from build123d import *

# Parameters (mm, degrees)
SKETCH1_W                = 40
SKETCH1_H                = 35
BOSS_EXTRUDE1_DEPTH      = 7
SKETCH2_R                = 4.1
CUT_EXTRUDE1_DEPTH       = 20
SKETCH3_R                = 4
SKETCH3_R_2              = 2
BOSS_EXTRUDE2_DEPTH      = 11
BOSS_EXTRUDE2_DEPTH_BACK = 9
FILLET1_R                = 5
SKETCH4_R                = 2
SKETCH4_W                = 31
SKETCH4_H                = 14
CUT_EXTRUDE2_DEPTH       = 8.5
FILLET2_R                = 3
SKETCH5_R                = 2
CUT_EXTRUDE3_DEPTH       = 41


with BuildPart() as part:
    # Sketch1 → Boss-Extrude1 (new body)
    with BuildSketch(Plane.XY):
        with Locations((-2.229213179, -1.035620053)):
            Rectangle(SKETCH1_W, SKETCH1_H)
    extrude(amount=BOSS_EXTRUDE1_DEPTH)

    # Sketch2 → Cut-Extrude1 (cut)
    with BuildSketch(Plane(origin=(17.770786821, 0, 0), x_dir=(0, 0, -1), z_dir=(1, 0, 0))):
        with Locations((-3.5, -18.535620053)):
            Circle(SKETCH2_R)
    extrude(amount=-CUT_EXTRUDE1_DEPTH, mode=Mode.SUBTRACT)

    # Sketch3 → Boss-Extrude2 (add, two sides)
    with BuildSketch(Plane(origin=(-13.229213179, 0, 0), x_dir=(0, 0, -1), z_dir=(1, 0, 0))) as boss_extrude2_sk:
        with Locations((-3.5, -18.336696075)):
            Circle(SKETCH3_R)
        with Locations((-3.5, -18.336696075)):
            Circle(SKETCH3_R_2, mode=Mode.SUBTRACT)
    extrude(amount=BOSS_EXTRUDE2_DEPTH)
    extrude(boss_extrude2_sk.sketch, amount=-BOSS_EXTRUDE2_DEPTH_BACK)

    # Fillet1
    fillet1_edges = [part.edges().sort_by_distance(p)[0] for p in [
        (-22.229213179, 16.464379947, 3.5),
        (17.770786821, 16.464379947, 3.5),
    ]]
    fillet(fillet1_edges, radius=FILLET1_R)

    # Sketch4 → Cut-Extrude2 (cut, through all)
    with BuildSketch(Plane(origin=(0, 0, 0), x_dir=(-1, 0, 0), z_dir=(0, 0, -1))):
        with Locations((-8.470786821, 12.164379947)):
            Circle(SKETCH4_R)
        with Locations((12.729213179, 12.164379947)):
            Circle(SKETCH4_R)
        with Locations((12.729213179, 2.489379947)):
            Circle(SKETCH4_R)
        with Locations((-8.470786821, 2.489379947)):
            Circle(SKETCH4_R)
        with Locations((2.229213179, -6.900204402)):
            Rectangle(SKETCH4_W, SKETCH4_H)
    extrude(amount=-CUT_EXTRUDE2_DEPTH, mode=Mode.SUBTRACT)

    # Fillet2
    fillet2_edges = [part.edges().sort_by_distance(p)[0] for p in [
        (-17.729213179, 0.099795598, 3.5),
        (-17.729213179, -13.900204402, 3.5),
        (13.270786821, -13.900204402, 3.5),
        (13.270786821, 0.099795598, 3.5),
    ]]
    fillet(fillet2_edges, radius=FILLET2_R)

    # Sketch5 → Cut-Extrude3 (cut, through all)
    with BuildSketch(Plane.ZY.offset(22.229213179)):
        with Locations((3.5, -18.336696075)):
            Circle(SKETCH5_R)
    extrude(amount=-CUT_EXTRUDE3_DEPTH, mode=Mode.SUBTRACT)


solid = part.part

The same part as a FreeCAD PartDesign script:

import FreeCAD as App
import Part
import Sketcher


def edges_at(feature, points):
    """Names of the edges that pass closest to the given points."""
    edges = feature.Shape.Edges
    near = lambda p: min(range(len(edges)), key=lambda i: edges[i].distToShape(Part.Vertex(*p))[0])
    return sorted({f"Edge{near(p) + 1}" for p in points})


def add_polygon(sketch, points):
    """Adds a closed chain of lines whose ends are joined by coincident constraints."""
    first, n = sketch.GeometryCount, len(points)
    for a, b in zip(points, points[1:] + points[:1]):
        sketch.addGeometry(Part.LineSegment(App.Vector(*a, 0), App.Vector(*b, 0)), False)
    for i in range(n):
        sketch.addConstraint(Sketcher.Constraint("Coincident", first + i, 2, first + (i + 1) % n, 1))

doc = App.newDocument("Part")
params = doc.addObject("Spreadsheet::Sheet", "Params")
for row, (alias, value) in enumerate([
    ("sketch1_width", "40 mm"),
    ("sketch1_height", "35 mm"),
    ("pad1_length", "7 mm"),
    ("sketch2_diameter", "8.2 mm"),
    ("pocket1_length", "20 mm"),
    ("sketch3_diameter", "8 mm"),
    ("sketch3_diameter2", "4 mm"),
    ("pad2_length", "11 mm"),
    ("pad2_length2", "9 mm"),
    ("fillet_radius", "5 mm"),
    ("sketch4_diameter", "4 mm"),
    ("sketch4_width", "31 mm"),
    ("sketch4_height", "14 mm"),
    ("fillet2_radius", "3 mm"),
    ("sketch5_diameter", "4 mm"),
], start=1):
    params.set(f"A{row}", alias)
    params.set(f"B{row}", "=" + value)
    params.setAlias(f"B{row}", alias)

body = doc.addObject("PartDesign::Body", "Body")

sketch1 = body.newObject("Sketcher::SketchObject", "Sketch")
sketch1.AttachmentSupport = (doc.getObject("XY_Plane"), [""])
sketch1.MapMode = "FlatFace"
add_polygon(sketch1, [(-22.229213, 16.46438), (-22.229213, -18.53562), (17.770787, -18.53562), (17.770787, 16.46438)])
sketch1.addConstraint([
    Sketcher.Constraint("Vertical", 0),
    Sketcher.Constraint("Horizontal", 1),
    Sketcher.Constraint("Vertical", 2),
    Sketcher.Constraint("Horizontal", 3),
    Sketcher.Constraint("DistanceX", 1, 1, 1, 2, 40.0),
    Sketcher.Constraint("DistanceY", 0, 2, 0, 1, 35.0),
    Sketcher.Constraint("DistanceY", 0, 2, -1, 1, 18.53562),
    Sketcher.Constraint("DistanceX", 0, 2, -1, 1, 22.229213),
])
sketch1.setExpression("Constraints[8]", "Params.sketch1_width")
sketch1.setExpression("Constraints[9]", "Params.sketch1_height")
pad1 = body.newObject("PartDesign::Pad", "Pad")
pad1.Profile = sketch1
pad1.setExpression("Length", "Params.pad1_length")

sketch2 = body.newObject("Sketcher::SketchObject", "Sketch001")
sketch2.AttachmentSupport = (doc.getObject("YZ_Plane"), [""])
sketch2.MapMode = "FlatFace"
sketch2.AttachmentOffset = App.Placement(App.Vector(0, 0, 17.770787), App.Rotation())
sketch2.addGeometry(Part.Circle(App.Vector(-18.53562, 3.5, 0), App.Vector(0, 0, 1), 4.1), False)
sketch2.addConstraint([
    Sketcher.Constraint("Diameter", 0, 8.2),
    Sketcher.Constraint("DistanceY", -1, 1, 0, 3, 3.5),
    Sketcher.Constraint("DistanceX", 0, 3, -1, 1, 18.53562),
])
sketch2.setExpression("Constraints[0]", "Params.sketch2_diameter")
pocket1 = body.newObject("PartDesign::Pocket", "Pocket")
pocket1.Profile = sketch2
pocket1.setExpression("Length", "Params.pocket1_length")

sketch3 = body.newObject("Sketcher::SketchObject", "Sketch002")
sketch3.AttachmentSupport = (doc.getObject("YZ_Plane"), [""])
sketch3.MapMode = "FlatFace"
sketch3.AttachmentOffset = App.Placement(App.Vector(0, 0, -13.229213), App.Rotation())
sketch3.addGeometry([
    Part.Circle(App.Vector(-18.336696, 3.5, 0), App.Vector(0, 0, 1), 4),
    Part.Circle(App.Vector(-18.336696, 3.5, 0), App.Vector(0, 0, 1), 2),
], False)
sketch3.addConstraint([
    Sketcher.Constraint("Coincident", 1, 3, 0, 3),
    Sketcher.Constraint("Diameter", 0, 8.0),
    Sketcher.Constraint("Diameter", 1, 4.0),
    Sketcher.Constraint("DistanceY", -1, 1, 0, 3, 3.5),
    Sketcher.Constraint("DistanceX", 0, 3, -1, 1, 18.336696),
])
sketch3.setExpression("Constraints[1]", "Params.sketch3_diameter")
sketch3.setExpression("Constraints[2]", "Params.sketch3_diameter2")
pad2 = body.newObject("PartDesign::Pad", "Pad001")
pad2.Profile = sketch3
pad2.Type = "TwoLengths"
pad2.setExpression("Length", "Params.pad2_length")
pad2.setExpression("Length2", "Params.pad2_length2")
doc.recompute()

fillet = body.newObject("PartDesign::Fillet", "Fillet")
fillet.Base = (pad2, edges_at(pad2, [(-22.229, 16.464, 3.5), (17.771, 16.464, 3.5)]))
fillet.setExpression("Radius", "Params.fillet_radius")

sketch4 = body.newObject("Sketcher::SketchObject", "Sketch003")
sketch4.AttachmentSupport = (doc.getObject("XY_Plane"), [""])
sketch4.MapMode = "FlatFace"
sketch4.addGeometry(Part.Circle(App.Vector(8.470787, 12.16438, 0), App.Vector(0, 0, 1), 2), False)
sketch4.addGeometry(Part.Circle(App.Vector(-12.729213, 12.16438, 0), App.Vector(0, 0, 1), 2), False)
sketch4.addGeometry(Part.Circle(App.Vector(-12.729213, 2.48938, 0), App.Vector(0, 0, 1), 2), False)
sketch4.addGeometry(Part.Circle(App.Vector(8.470787, 2.48938, 0), App.Vector(0, 0, 1), 2), False)
add_polygon(sketch4, [(13.270787, 0.099796), (13.270787, -13.900204), (-17.729213, -13.900204), (-17.729213, 0.099796)])
sketch4.addConstraint([
    Sketcher.Constraint("Vertical", 4),
    Sketcher.Constraint("Horizontal", 5),
    Sketcher.Constraint("Vertical", 6),
    Sketcher.Constraint("Horizontal", 7),
    Sketcher.Constraint("Equal", 0, 1),
    Sketcher.Constraint("Equal", 1, 2),
    Sketcher.Constraint("Equal", 2, 3),
    Sketcher.Constraint("Horizontal", 0, 3, 1, 3),
    Sketcher.Constraint("Horizontal", 2, 3, 3, 3),
    Sketcher.Constraint("Vertical", 1, 3, 2, 3),
    Sketcher.Constraint("Vertical", 0, 3, 3, 3),
    Sketcher.Constraint("Diameter", 0, 4.0),
    Sketcher.Constraint("DistanceX", 5, 2, 5, 1, 31.0),
    Sketcher.Constraint("DistanceY", 4, 2, 4, 1, 14.0),
    Sketcher.Constraint("DistanceX", 2, 3, 4, 2, 26.0),
    Sketcher.Constraint("DistanceX", 1, 3, 0, 3, 21.2),
    Sketcher.Constraint("DistanceY", 2, 3, 1, 3, 9.675),
    Sketcher.Constraint("DistanceY", -1, 1, 0, 3, 12.16438),
    Sketcher.Constraint("DistanceX", -1, 1, 0, 3, 8.470787),
    Sketcher.Constraint("DistanceY", 4, 2, -1, 1, 13.900204),
])
sketch4.setExpression("Constraints[15]", "Params.sketch4_diameter")
sketch4.setExpression("Constraints[16]", "Params.sketch4_width")
sketch4.setExpression("Constraints[17]", "Params.sketch4_height")
pocket2 = body.newObject("PartDesign::Pocket", "Pocket001")
pocket2.Profile = sketch4
pocket2.Type = "ThroughAll"
pocket2.Reversed = True
doc.recompute()

fillet2 = body.newObject("PartDesign::Fillet", "Fillet001")
fillet2.Base = (pocket2, edges_at(pocket2, [
    (-17.729, 0.1, 3.5),
    (-17.729, -13.9, 3.5),
    (13.271, -13.9, 3.5),
    (13.271, 0.1, 3.5),
]))
fillet2.setExpression("Radius", "Params.fillet2_radius")

sketch5 = body.newObject("Sketcher::SketchObject", "Sketch004")
sketch5.AttachmentSupport = (doc.getObject("YZ_Plane"), [""])
sketch5.MapMode = "FlatFace"
sketch5.AttachmentOffset = App.Placement(App.Vector(0, 0, -22.229213), App.Rotation())
sketch5.addGeometry(Part.Circle(App.Vector(-18.336696, 3.5, 0), App.Vector(0, 0, 1), 2), False)
sketch5.addConstraint([
    Sketcher.Constraint("Diameter", 0, 4.0),
    Sketcher.Constraint("DistanceY", -1, 1, 0, 3, 3.5),
    Sketcher.Constraint("DistanceX", 0, 3, -1, 1, 18.336696),
])
sketch5.setExpression("Constraints[0]", "Params.sketch5_diameter")
pocket3 = body.newObject("PartDesign::Pocket", "Pocket002")
pocket3.Profile = sketch5
pocket3.Type = "ThroughAll"
pocket3.Reversed = True

doc.recompute()
